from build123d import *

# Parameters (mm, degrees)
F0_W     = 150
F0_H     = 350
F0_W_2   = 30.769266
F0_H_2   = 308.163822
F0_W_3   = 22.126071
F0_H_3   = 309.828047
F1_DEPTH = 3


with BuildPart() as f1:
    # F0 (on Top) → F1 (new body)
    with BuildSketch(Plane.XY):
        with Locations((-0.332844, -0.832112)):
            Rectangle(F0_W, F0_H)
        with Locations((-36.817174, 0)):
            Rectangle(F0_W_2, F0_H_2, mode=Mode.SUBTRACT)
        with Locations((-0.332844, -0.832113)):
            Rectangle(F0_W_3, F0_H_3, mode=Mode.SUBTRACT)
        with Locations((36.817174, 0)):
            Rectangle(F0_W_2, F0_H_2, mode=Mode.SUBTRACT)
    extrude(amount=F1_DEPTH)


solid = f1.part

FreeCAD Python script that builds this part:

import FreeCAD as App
import Part
import Sketcher

V = App.Vector

doc = App.newDocument("Part")
body = doc.addObject("PartDesign::Body", "Body")

sketch1 = body.newObject("Sketcher::SketchObject", "Sketch")
sketch1.AttachmentSupport = (doc.getObject("XY_Plane"), [""])
sketch1.MapMode = "FlatFace"
sketch1.addGeometry([
    Part.LineSegment(V(-75.332844, 174.167888, 0), V(-75.332844, -175.832112, 0)),
    Part.LineSegment(V(-75.332844, -175.832112, 0), V(74.667156, -175.832112, 0)),
    Part.LineSegment(V(74.667156, -175.832112, 0), V(74.667156, 174.167888, 0)),
    Part.LineSegment(V(74.667156, 174.167888, 0), V(-75.332844, 174.167888, 0)),
    Part.LineSegment(V(10.730192, -155.746137, 0), V(-11.395879, -155.746137, 0)),
    Part.LineSegment(V(-11.395879, -155.746137, 0), V(-11.395879, 154.08191, 0)),
    Part.LineSegment(V(-11.395879, 154.08191, 0), V(10.730192, 154.08191, 0)),
    Part.LineSegment(V(10.730192, 154.08191, 0), V(10.730192, -155.746137, 0)),
    Part.LineSegment(V(-21.432541, -154.081911, 0), V(-52.201807, -154.081911, 0)),
    Part.LineSegment(V(-52.201807, -154.081911, 0), V(-52.201807, 154.081911, 0)),
    Part.LineSegment(V(-52.201807, 154.081911, 0), V(-21.432541, 154.081911, 0)),
    Part.LineSegment(V(-21.432541, 154.081911, 0), V(-21.432541, -154.081911, 0)),
    Part.LineSegment(V(52.201807, -154.081911, 0), V(21.432541, -154.081911, 0)),
    Part.LineSegment(V(21.432541, -154.081911, 0), V(21.432541, 154.081911, 0)),
    Part.LineSegment(V(21.432541, 154.081911, 0), V(52.201807, 154.081911, 0)),
    Part.LineSegment(V(52.201807, 154.081911, 0), V(52.201807, -154.081911, 0)),
], False)
sketch1.addConstraint([
    Sketcher.Constraint("Coincident", 0, 2, 1, 1),
    Sketcher.Constraint("Coincident", 1, 2, 2, 1),
    Sketcher.Constraint("Coincident", 2, 2, 3, 1),
    Sketcher.Constraint("Coincident", 3, 2, 0, 1),
    Sketcher.Constraint("Coincident", 4, 2, 5, 1),
    Sketcher.Constraint("Coincident", 5, 2, 6, 1),
    Sketcher.Constraint("Coincident", 6, 2, 7, 1),
    Sketcher.Constraint("Coincident", 7, 2, 4, 1),
    Sketcher.Constraint("Coincident", 8, 2, 9, 1),
    Sketcher.Constraint("Coincident", 9, 2, 10, 1),
    Sketcher.Constraint("Coincident", 10, 2, 11, 1),
    Sketcher.Constraint("Coincident", 11, 2, 8, 1),
    Sketcher.Constraint("Coincident", 12, 2, 13, 1),
    Sketcher.Constraint("Coincident", 13, 2, 14, 1),
    Sketcher.Constraint("Coincident", 14, 2, 15, 1),
    Sketcher.Constraint("Coincident", 15, 2, 12, 1),
    Sketcher.Constraint("Vertical", 0),
    Sketcher.Constraint("Horizontal", 1),
    Sketcher.Constraint("Vertical", 2),
    Sketcher.Constraint("Horizontal", 3),
    Sketcher.Constraint("Horizontal", 4),
    Sketcher.Constraint("Vertical", 5),
    Sketcher.Constraint("Horizontal", 6),
    Sketcher.Constraint("Vertical", 7),
    Sketcher.Constraint("Horizontal", 8),
    Sketcher.Constraint("Vertical", 9),
    Sketcher.Constraint("Horizontal", 10),
    Sketcher.Constraint("Vertical", 11),
    Sketcher.Constraint("Horizontal", 12),
    Sketcher.Constraint("Vertical", 13),
    Sketcher.Constraint("Horizontal", 14),
    Sketcher.Constraint("Vertical", 15),
    Sketcher.Constraint("Symmetric", 10, 2, 12, 2, -1, 1),
    Sketcher.Constraint("Symmetric", 8, 2, 14, 2, -1, 1),
    Sketcher.Constraint("Horizontal", 6, 2, 9, 2),
    Sketcher.Constraint("Horizontal", 11, 2, 12, 2),
    Sketcher.Constraint("DistanceX", 1, 1, 1, 2, 150.0),
    Sketcher.Constraint("DistanceY", 0, 2, 0, 1, 350.0),
    Sketcher.Constraint("DistanceX", 8, 2, 7, 2, 62.931999),
    Sketcher.Constraint("DistanceX", 4, 2, 4, 1, 22.126071),
    Sketcher.Constraint("DistanceY", 9, 1, 9, 2, 308.163822),
    Sketcher.Constraint("DistanceY", 0, 2, 8, 2, 21.750201),
    Sketcher.Constraint("DistanceX", 8, 2, 8, 1, 30.769266),
    Sketcher.Constraint("DistanceY", 5, 1, 5, 2, 309.828047),
    Sketcher.Constraint("DistanceX", 4, 2, -1, 1, 11.395879),
    Sketcher.Constraint("DistanceX", 14, 2, 2, 2, 22.465349),
])
pad1 = body.newObject("PartDesign::Pad", "Pad")
pad1.Profile = sketch1
pad1.Length = 3

doc.recompute()
